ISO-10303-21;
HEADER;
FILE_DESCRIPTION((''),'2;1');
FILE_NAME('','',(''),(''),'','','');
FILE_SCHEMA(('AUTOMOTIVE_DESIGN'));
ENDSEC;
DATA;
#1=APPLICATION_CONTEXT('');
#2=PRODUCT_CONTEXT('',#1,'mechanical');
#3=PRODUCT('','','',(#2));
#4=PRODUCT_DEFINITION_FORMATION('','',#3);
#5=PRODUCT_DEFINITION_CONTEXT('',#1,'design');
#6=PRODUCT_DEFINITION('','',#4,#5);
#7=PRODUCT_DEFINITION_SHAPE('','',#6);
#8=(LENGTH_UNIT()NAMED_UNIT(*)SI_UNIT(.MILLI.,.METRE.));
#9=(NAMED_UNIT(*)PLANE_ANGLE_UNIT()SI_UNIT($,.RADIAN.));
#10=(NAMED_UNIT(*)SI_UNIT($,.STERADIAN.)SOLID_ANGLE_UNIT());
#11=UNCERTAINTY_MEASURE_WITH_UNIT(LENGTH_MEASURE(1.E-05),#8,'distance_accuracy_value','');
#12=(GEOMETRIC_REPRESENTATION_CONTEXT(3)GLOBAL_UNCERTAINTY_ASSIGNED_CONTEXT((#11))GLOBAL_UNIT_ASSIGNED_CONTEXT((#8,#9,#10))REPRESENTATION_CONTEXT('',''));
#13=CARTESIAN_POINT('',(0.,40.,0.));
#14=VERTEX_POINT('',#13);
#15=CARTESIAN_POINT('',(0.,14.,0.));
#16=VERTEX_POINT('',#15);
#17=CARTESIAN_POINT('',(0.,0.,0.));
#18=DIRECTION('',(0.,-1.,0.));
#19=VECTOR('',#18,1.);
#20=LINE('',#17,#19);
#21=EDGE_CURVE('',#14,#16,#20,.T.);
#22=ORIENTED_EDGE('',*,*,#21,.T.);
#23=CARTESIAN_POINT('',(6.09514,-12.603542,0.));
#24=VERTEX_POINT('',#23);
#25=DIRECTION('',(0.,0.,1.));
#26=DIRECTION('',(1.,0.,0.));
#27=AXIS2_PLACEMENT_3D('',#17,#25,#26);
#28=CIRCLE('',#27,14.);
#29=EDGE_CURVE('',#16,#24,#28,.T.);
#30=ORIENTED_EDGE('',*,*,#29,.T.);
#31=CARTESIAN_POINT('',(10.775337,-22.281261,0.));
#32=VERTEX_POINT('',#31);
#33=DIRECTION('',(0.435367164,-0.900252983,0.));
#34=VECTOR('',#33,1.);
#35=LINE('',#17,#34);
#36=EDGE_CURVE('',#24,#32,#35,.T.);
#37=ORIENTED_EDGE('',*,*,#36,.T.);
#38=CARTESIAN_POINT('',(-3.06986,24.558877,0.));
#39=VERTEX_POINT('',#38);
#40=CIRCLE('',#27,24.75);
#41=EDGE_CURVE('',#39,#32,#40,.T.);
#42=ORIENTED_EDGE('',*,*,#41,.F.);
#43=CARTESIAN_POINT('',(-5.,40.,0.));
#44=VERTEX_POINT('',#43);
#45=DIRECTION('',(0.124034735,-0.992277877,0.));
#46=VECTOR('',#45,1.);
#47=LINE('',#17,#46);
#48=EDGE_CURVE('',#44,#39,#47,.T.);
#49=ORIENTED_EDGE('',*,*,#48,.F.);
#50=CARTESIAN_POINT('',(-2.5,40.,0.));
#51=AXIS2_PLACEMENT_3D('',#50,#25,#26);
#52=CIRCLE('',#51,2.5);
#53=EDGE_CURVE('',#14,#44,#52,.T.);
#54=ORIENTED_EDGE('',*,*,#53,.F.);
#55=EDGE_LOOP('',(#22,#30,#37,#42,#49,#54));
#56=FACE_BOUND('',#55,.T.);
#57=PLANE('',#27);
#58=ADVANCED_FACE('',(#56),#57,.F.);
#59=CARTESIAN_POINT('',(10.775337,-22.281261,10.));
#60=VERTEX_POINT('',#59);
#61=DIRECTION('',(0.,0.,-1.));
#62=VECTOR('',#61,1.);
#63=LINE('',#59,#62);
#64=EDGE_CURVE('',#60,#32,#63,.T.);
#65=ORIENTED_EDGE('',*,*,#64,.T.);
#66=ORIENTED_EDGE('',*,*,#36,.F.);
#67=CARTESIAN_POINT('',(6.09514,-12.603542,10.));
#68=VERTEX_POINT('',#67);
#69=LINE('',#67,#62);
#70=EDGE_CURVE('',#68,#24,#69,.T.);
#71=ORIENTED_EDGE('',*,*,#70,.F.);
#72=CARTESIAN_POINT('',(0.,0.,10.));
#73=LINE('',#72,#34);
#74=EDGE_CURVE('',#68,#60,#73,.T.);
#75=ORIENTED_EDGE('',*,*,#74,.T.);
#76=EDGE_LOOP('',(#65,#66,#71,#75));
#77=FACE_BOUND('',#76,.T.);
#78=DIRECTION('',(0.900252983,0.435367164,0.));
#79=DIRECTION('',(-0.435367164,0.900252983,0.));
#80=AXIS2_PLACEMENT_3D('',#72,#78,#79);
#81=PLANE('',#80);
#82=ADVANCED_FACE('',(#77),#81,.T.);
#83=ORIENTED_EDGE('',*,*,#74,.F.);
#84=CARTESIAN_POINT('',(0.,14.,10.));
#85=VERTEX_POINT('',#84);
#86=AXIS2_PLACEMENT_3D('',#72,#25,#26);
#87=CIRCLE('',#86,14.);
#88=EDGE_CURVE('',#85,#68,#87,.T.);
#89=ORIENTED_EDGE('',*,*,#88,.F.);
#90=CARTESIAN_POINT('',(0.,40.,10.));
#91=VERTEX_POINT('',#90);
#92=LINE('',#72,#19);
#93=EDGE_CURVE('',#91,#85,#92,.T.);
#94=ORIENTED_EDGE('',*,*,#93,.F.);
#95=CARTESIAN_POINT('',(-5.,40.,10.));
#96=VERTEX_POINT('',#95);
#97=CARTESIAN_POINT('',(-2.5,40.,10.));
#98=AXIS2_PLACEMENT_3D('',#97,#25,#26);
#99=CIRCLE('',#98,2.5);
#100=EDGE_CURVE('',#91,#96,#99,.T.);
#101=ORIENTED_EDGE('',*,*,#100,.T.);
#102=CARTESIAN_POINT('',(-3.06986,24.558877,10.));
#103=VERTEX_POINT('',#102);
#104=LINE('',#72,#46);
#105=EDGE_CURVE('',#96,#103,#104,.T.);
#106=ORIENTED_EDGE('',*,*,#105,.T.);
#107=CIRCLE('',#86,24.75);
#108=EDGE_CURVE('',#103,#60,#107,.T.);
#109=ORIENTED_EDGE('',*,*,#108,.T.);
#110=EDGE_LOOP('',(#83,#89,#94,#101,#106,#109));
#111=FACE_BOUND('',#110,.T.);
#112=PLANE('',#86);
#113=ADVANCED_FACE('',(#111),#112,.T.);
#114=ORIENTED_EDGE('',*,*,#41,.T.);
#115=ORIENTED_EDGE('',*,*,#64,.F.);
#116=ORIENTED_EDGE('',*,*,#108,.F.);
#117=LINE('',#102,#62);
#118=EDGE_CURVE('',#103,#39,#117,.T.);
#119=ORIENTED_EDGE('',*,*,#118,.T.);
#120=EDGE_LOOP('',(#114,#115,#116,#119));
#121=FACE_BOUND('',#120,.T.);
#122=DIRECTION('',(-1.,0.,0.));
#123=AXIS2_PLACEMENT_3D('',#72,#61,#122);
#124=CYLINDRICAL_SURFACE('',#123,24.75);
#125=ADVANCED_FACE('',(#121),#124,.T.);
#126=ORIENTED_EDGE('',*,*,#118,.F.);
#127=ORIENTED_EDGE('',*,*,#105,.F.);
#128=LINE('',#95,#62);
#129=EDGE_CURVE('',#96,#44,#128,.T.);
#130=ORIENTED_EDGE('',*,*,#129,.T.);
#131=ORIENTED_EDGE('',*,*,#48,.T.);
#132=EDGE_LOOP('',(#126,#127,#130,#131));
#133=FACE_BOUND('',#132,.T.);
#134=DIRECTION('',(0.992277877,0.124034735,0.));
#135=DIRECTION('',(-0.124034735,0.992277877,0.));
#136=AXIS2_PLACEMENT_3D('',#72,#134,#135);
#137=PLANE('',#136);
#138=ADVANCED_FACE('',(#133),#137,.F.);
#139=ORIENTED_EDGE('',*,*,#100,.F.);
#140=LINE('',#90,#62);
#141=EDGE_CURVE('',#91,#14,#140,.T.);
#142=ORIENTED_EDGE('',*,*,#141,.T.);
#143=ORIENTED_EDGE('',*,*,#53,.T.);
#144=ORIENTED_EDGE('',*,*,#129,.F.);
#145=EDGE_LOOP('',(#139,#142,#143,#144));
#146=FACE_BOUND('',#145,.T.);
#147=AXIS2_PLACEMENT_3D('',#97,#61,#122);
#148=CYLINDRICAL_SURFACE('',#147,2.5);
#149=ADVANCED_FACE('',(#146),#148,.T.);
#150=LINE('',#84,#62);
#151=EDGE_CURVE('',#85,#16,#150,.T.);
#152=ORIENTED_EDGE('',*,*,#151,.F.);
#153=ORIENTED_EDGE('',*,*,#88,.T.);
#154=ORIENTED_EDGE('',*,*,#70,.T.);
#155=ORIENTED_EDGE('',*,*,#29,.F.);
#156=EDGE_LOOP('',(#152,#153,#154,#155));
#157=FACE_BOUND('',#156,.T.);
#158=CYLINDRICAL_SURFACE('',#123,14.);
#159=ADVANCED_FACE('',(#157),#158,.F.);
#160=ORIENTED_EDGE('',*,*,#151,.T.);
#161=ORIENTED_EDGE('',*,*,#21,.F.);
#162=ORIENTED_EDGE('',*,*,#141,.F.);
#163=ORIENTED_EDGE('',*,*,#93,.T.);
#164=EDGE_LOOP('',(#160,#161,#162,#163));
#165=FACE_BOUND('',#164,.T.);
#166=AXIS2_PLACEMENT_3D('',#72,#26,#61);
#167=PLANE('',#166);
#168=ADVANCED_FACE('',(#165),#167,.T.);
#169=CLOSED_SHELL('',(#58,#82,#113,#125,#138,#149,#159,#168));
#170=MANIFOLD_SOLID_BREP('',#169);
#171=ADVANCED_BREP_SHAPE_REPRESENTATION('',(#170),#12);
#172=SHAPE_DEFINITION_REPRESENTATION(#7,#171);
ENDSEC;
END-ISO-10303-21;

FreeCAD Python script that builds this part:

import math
import FreeCAD as App
import Part
import Sketcher
from FreeCAD import Vector
Q = App.Units.Quantity

doc = App.newDocument("Part")
body = doc.addObject("PartDesign::Body", "Body")

sketch1 = body.newObject("Sketcher::SketchObject", "Sketch")
sketch1.AttachmentSupport = (doc.getObject("XY_Plane"), [""])
sketch1.MapMode = "FlatFace"
sketch1.addGeometry(Part.LineSegment(Vector(0, 14, 0), Vector(0, 40, 0)), False)
sketch1.addGeometry(Part.ArcOfCircle(Part.Circle(Vector(-2.5, 40, 0), Vector(0, 0, 1), 2.5), math.radians(0), math.radians(180)), False)
sketch1.addGeometry(Part.LineSegment(Vector(-5, 40, 0), Vector(-4.9, 39.4, 0)), False)
sketch1.addGeometry(Part.LineSegment(Vector(-4.9, 39.4, 0), Vector(-3.1, 24.6, 0)), False)
sketch1.addGeometry(Part.ArcOfCircle(Part.Circle(Vector(0, 0, 0), Vector(0, 0, 1), 24.8), math.radians(97), math.radians(296)), False)
sketch1.addGeometry(Part.LineSegment(Vector(10.8, -22.3, 0), Vector(6.1, -12.6, 0)), False)
sketch1.addGeometry(Part.ArcOfCircle(Part.Circle(Vector(0, 0, 0), Vector(0, 0, 1), 14), math.radians(90), math.radians(296)), False)
sketch1.addConstraint(Sketcher.Constraint("Tangent", 0, 2, 1, 1))
sketch1.addConstraint(Sketcher.Constraint("Coincident", 1, 2, 2, 1))
sketch1.addConstraint(Sketcher.Constraint("Coincident", 2, 2, 3, 1))
sketch1.addConstraint(Sketcher.Constraint("Coincident", 3, 2, 4, 1))
sketch1.addConstraint(Sketcher.Constraint("Coincident", 4, 2, 5, 1))
sketch1.addConstraint(Sketcher.Constraint("Coincident", 5, 2, 6, 2))
sketch1.addConstraint(Sketcher.Constraint("Coincident", 6, 1, 0, 1))
sketch1.addConstraint(Sketcher.Constraint("Vertical", 0))
sketch1.addConstraint(Sketcher.Constraint("Coincident", 4, 3, -1, 1))
sketch1.addConstraint(Sketcher.Constraint("Coincident", 6, 3, -1, 1))
sketch1.addConstraint(Sketcher.Constraint("PointOnObject", 0, 2, -2))
sketch1.addConstraint(Sketcher.Constraint("Parallel", 2, 3))
sketch1.addConstraint(Sketcher.Constraint("Horizontal", 0, 2, 1, 2))
sketch1.addConstraint(Sketcher.Constraint("Radius", 6, Q("14 mm")))
sketch1.addConstraint(Sketcher.Constraint("Radius", 1, Q("2.5 mm")))
sketch1.addConstraint(Sketcher.Constraint("DistanceY", 0, 1, 0, 2, Q("26 mm")))
sketch1.addConstraint(Sketcher.Constraint("Radius", 4, Q("24.75 mm")))
sketch1.addConstraint(Sketcher.Constraint("DistanceX", 3, 2, 5, 2, Q("9.165 mm")))
sketch1.addConstraint(Sketcher.Constraint("DistanceX", 3, 2, -1, 1, Q("3.06986 mm")))
sketch1.addConstraint(Sketcher.Constraint("DistanceY", 4, 2, -1, 1, Q("22.281261 mm")))
sketch1.addConstraint(Sketcher.Constraint("Distance", 2, Q("0.620174 mm")))
pad1 = body.newObject("PartDesign::Pad", "Pad")
pad1.Profile = sketch1
pad1.Length = 10

doc.recompute()
